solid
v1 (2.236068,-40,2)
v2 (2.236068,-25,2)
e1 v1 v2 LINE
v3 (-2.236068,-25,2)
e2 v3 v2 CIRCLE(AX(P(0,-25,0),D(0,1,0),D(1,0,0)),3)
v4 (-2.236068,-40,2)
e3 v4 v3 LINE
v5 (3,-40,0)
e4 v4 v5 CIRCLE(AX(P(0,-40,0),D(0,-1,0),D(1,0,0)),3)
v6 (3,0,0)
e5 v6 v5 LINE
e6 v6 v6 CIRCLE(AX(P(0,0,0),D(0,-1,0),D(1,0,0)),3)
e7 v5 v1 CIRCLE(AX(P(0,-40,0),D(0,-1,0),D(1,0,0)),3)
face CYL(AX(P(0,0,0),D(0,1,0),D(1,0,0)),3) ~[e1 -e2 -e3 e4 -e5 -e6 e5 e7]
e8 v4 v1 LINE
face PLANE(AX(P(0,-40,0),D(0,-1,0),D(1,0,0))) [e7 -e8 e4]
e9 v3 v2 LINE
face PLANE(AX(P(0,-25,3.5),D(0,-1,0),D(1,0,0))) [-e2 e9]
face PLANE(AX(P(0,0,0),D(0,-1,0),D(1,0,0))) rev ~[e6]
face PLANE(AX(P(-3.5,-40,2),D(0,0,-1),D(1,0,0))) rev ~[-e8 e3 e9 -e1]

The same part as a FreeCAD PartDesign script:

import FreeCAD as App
import Part
import Sketcher
from FreeCAD import Vector

doc = App.newDocument("Part")
body = doc.addObject("PartDesign::Body", "Body")

# Sketch on XZ plane
sketch1 = doc.addObject("Sketcher::SketchObject", "Sketch")
body.addObject(sketch1)
sketch1.AttachmentSupport = (doc.XZ_Plane, [""])
sketch1.MapMode = "FlatFace"
sketch1.addGeometry(Part.Circle(Vector(0, 0, 0), Vector(0, 0, 1), 3), False)
sketch1.addConstraint([
    Sketcher.Constraint("Coincident", 0, 3, -1, 1),
    Sketcher.Constraint("Diameter", 0, 6.0),
])
pad1 = doc.addObject("PartDesign::Pad", "Pad")
body.addObject(pad1)
pad1.Profile = sketch1
pad1.Length = 40

# Sketch on XZ plane
sketch2 = doc.addObject("Sketcher::SketchObject", "Sketch001")
body.addObject(sketch2)
sketch2.AttachmentSupport = (doc.XZ_Plane, [""])
sketch2.MapMode = "FlatFace"
sketch2.AttachmentOffset = App.Placement(Vector(0, 0, 40), App.Rotation())
sketch2.addGeometry([
    Part.LineSegment(Vector(-3.5, 5, 0), Vector(-3.5, 2, 0)),
    Part.LineSegment(Vector(-3.5, 2, 0), Vector(3.5, 2, 0)),
    Part.LineSegment(Vector(3.5, 2, 0), Vector(3.5, 5, 0)),
    Part.LineSegment(Vector(3.5, 5, 0), Vector(-3.5, 5, 0)),
], False)
sketch2.addConstraint([
    Sketcher.Constraint("Coincident", 0, 2, 1, 1),
    Sketcher.Constraint("Coincident", 1, 2, 2, 1),
    Sketcher.Constraint("Coincident", 2, 2, 3, 1),
    Sketcher.Constraint("Coincident", 3, 2, 0, 1),
    Sketcher.Constraint("Vertical", 0),
    Sketcher.Constraint("Horizontal", 1),
    Sketcher.Constraint("Vertical", 2),
    Sketcher.Constraint("Horizontal", 3),
    Sketcher.Constraint("DistanceX", 1, 1, 1, 2, 7.0),
    Sketcher.Constraint("DistanceY", 0, 2, 0, 1, 3.0),
    Sketcher.Constraint("DistanceY", -1, 1, 0, 2, 2.0),
    Sketcher.Constraint("DistanceX", 0, 2, -1, 1, 3.5),
])
pocket1 = doc.addObject("PartDesign::Pocket", "Pocket")
body.addObject(pocket1)
pocket1.Profile = sketch2
pocket1.Length = 15

doc.recompute()
